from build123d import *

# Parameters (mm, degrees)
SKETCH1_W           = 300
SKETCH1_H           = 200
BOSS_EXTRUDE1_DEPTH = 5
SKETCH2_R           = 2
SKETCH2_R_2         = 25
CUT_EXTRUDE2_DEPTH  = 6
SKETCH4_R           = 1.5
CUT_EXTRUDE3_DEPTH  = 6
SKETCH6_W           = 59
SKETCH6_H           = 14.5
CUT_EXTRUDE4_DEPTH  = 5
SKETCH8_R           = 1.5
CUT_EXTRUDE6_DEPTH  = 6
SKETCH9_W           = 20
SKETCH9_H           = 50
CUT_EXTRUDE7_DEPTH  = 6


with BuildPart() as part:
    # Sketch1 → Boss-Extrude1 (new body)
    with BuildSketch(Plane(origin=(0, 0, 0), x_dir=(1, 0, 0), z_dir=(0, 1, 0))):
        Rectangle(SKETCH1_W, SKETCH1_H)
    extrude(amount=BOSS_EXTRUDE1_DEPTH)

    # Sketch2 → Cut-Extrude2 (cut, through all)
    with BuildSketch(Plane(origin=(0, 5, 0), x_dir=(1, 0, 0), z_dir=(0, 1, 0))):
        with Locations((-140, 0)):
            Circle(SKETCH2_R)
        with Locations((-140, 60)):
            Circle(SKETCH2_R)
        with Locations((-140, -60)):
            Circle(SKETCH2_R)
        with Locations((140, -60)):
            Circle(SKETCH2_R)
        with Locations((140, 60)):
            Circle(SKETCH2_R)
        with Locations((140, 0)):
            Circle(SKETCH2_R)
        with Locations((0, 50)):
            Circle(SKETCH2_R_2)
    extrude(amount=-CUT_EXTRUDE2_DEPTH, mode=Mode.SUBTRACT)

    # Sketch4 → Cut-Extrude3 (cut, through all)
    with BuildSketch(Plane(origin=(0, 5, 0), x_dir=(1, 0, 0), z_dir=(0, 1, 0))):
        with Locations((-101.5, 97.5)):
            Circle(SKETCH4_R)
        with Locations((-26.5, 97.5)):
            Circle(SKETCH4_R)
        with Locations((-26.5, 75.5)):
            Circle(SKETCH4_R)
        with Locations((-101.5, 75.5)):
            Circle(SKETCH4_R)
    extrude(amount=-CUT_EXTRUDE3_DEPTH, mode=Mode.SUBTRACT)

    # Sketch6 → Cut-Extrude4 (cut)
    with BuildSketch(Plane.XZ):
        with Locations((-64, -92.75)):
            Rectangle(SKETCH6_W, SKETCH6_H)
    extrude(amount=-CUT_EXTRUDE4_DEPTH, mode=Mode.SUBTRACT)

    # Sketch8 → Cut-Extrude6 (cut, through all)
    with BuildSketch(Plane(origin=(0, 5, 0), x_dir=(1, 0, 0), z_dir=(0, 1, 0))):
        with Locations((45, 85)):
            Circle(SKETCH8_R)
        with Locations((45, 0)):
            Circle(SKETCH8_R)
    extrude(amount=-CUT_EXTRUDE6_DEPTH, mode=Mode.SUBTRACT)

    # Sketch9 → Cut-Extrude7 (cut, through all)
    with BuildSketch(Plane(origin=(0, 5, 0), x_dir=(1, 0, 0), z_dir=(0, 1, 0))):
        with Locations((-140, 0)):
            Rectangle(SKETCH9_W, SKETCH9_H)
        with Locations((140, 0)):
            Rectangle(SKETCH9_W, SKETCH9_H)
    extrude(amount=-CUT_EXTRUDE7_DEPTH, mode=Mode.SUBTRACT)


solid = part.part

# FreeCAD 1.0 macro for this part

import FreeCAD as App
import Part
import Sketcher
from FreeCAD import Vector
Q = App.Units.Quantity


def add_polygon(sketch, points):
    """Adds a closed chain of lines whose ends are joined by coincident constraints."""
    first, n = sketch.GeometryCount, len(points)
    for a, b in zip(points, points[1:] + points[:1]):
        sketch.addGeometry(Part.LineSegment(App.Vector(*a, 0), App.Vector(*b, 0)), False)
    for i in range(n):
        sketch.addConstraint(Sketcher.Constraint("Coincident", first + i, 2, first + (i + 1) % n, 1))

doc = App.newDocument("Part")
body = doc.addObject("PartDesign::Body", "Body")

# Sketch on XZ plane
sketch1 = doc.addObject("Sketcher::SketchObject", "Sketch")
body.addObject(sketch1)
sketch1.AttachmentSupport = (doc.XZ_Plane, [""])
sketch1.MapMode = "FlatFace"
add_polygon(sketch1, [(-150, -100), (-150, 100), (150, 100), (150, -100)])  # lines 0-3
sketch1.addConstraint([
    Sketcher.Constraint("Vertical", 0),
    Sketcher.Constraint("Horizontal", 1),
    Sketcher.Constraint("Vertical", 2),
    Sketcher.Constraint("Horizontal", 3),
    Sketcher.Constraint("Symmetric", 0, 2, 2, 2, -1, 1),
    Sketcher.Constraint("DistanceX", 1, 1, 1, 2, Q("300 mm")),
    Sketcher.Constraint("DistanceY", 0, 1, 0, 2, Q("200 mm")),
])
pad1 = doc.addObject("PartDesign::Pad", "Pad")
body.addObject(pad1)
pad1.Profile = sketch1
pad1.Length = 5
pad1.Reversed = True

# Sketch on XZ plane
sketch2 = doc.addObject("Sketcher::SketchObject", "Sketch001")
body.addObject(sketch2)
sketch2.AttachmentSupport = (doc.XZ_Plane, [""])
sketch2.MapMode = "FlatFace"
sketch2.AttachmentOffset = App.Placement(Vector(0, 0, -5), App.Rotation())
sketch2.addGeometry([
    Part.Circle(Vector(-140, 0, 0), Vector(0, 0, 1), 2),  # 0
    Part.Circle(Vector(-140, -60, 0), Vector(0, 0, 1), 2),  # 1
    Part.Circle(Vector(-140, 60, 0), Vector(0, 0, 1), 2),  # 2
    Part.Circle(Vector(140, 60, 0), Vector(0, 0, 1), 2),  # 3
    Part.Circle(Vector(140, -60, 0), Vector(0, 0, 1), 2),  # 4
    Part.Circle(Vector(140, 0, 0), Vector(0, 0, 1), 2),  # 5
    Part.Circle(Vector(0, -50, 0), Vector(0, 0, 1), 25),  # 6
], False)
sketch2.addConstraint([
    Sketcher.Constraint("Equal", 0, 1),
    Sketcher.Constraint("Equal", 1, 2),
    Sketcher.Constraint("Equal", 2, 3),
    Sketcher.Constraint("Equal", 3, 4),
    Sketcher.Constraint("Equal", 4, 5),
    Sketcher.Constraint("Symmetric", 1, 3, 3, 3, -1, 1),
    Sketcher.Constraint("Symmetric", 2, 3, 4, 3, -1, 1),
    Sketcher.Constraint("Symmetric", 0, 3, 5, 3, -1, 1),
    Sketcher.Constraint("Symmetric", 2, 3, 3, 3, -2),
    Sketcher.Constraint("PointOnObject", 0, 3, -1),
    Sketcher.Constraint("PointOnObject", 6, 3, -2),
    Sketcher.Constraint("Vertical", 0, 3, 1, 3),
    Sketcher.Constraint("Diameter", 0, Q("4 mm")),
    Sketcher.Constraint("Diameter", 6, Q("50 mm")),
    Sketcher.Constraint("DistanceX", 0, 3, -1, 1, Q("140 mm")),
    Sketcher.Constraint("DistanceY", 1, 3, -1, 1, Q("60 mm")),
    Sketcher.Constraint("DistanceY", 6, 3, -1, 1, Q("50 mm")),
])
pocket1 = doc.addObject("PartDesign::Pocket", "Pocket")
body.addObject(pocket1)
pocket1.Profile = sketch2
pocket1.Type = "ThroughAll"
pocket1.Reversed = True

# Sketch on XZ plane
sketch3 = doc.addObject("Sketcher::SketchObject", "Sketch002")
body.addObject(sketch3)
sketch3.AttachmentSupport = (doc.XZ_Plane, [""])
sketch3.MapMode = "FlatFace"
sketch3.AttachmentOffset = App.Placement(Vector(0, 0, -5), App.Rotation())
sketch3.addGeometry([
    Part.Circle(Vector(-101.5, -97.5, 0), Vector(0, 0, 1), 1.5),
    Part.Circle(Vector(-26.5, -97.5, 0), Vector(0, 0, 1), 1.5),
    Part.Circle(Vector(-26.5, -75.5, 0), Vector(0, 0, 1), 1.5),
    Part.Circle(Vector(-101.5, -75.5, 0), Vector(0, 0, 1), 1.5),
], False)
sketch3.addConstraint([
    Sketcher.Constraint("Equal", 0, 1),
    Sketcher.Constraint("Equal", 1, 2),
    Sketcher.Constraint("Equal", 2, 3),
    Sketcher.Constraint("Horizontal", 0, 3, 1, 3),
    Sketcher.Constraint("Horizontal", 2, 3, 3, 3),
    Sketcher.Constraint("Vertical", 1, 3, 2, 3),
    Sketcher.Constraint("Vertical", 0, 3, 3, 3),
    Sketcher.Constraint("Diameter", 0, Q("3 mm")),
    Sketcher.Constraint("DistanceX", 0, 3, 1, 3, Q("75 mm")),
    Sketcher.Constraint("DistanceY", 1, 3, 2, 3, Q("22 mm")),
    Sketcher.Constraint("DistanceX", 0, 3, -1, 1, Q("101.5 mm")),
    Sketcher.Constraint("DistanceY", 0, 3, -1, 1, Q("97.5 mm")),
])
pocket2 = doc.addObject("PartDesign::Pocket", "Pocket001")
body.addObject(pocket2)
pocket2.Profile = sketch3
pocket2.Type = "ThroughAll"
pocket2.Reversed = True

# Sketch on XZ plane
sketch4 = doc.addObject("Sketcher::SketchObject", "Sketch003")
body.addObject(sketch4)
sketch4.AttachmentSupport = (doc.XZ_Plane, [""])
sketch4.MapMode = "FlatFace"
add_polygon(sketch4, [(-94, -86), (-94, -100), (-34, -100), (-34, -86)])  # lines 0-3
sketch4.addConstraint([
    Sketcher.Constraint("Vertical", 0),
    Sketcher.Constraint("Horizontal", 1),
    Sketcher.Constraint("Vertical", 2),
    Sketcher.Constraint("Horizontal", 3),
    Sketcher.Constraint("DistanceX", 1, 1, 1, 2, Q("59 mm")),
    Sketcher.Constraint("DistanceY", 0, 2, 0, 1, Q("14.5 mm")),
    Sketcher.Constraint("DistanceY", 0, 2, -1, 1, Q("100 mm")),
    Sketcher.Constraint("DistanceX", 0, 2, -1, 1, Q("93.5 mm")),
])
pocket3 = doc.addObject("PartDesign::Pocket", "Pocket002")
body.addObject(pocket3)
pocket3.Profile = sketch4
pocket3.Length = 5

# Sketch on XZ plane
sketch5 = doc.addObject("Sketcher::SketchObject", "Sketch004")
body.addObject(sketch5)
sketch5.AttachmentSupport = (doc.XZ_Plane, [""])
sketch5.MapMode = "FlatFace"
sketch5.AttachmentOffset = App.Placement(Vector(0, 0, -5), App.Rotation())
sketch5.addGeometry([
    Part.Circle(Vector(45, -85, 0), Vector(0, 0, 1), 1.5),
    Part.Circle(Vector(45, 0, 0), Vector(0, 0, 1), 1.5),
], False)
sketch5.addConstraint([
    Sketcher.Constraint("Equal", 0, 1),
    Sketcher.Constraint("PointOnObject", 1, 3, -1),
    Sketcher.Constraint("Vertical", 0, 3, 1, 3),
    Sketcher.Constraint("Diameter", 0, Q("3 mm")),
    Sketcher.Constraint("DistanceX", -1, 1, 0, 3, Q("45 mm")),
    Sketcher.Constraint("DistanceY", 0, 3, -1, 1, Q("85 mm")),
])
pocket4 = doc.addObject("PartDesign::Pocket", "Pocket003")
body.addObject(pocket4)
pocket4.Profile = sketch5
pocket4.Type = "ThroughAll"
pocket4.Reversed = True

# Sketch on XZ plane
sketch6 = doc.addObject("Sketcher::SketchObject", "Sketch005")
body.addObject(sketch6)
sketch6.AttachmentSupport = (doc.XZ_Plane, [""])
sketch6.MapMode = "FlatFace"
sketch6.AttachmentOffset = App.Placement(Vector(0, 0, -5), App.Rotation())
add_polygon(sketch6, [(-150, -25), (-150, 25), (-130, 25), (-130, -25)])  # lines 0-3
add_polygon(sketch6, [(130, -25), (130, 25), (150, 25), (150, -25)])  # lines 4-7
sketch6.addConstraint([
    Sketcher.Constraint("Vertical", 0),
    Sketcher.Constraint("Horizontal", 1),
    Sketcher.Constraint("Vertical", 2),
    Sketcher.Constraint("Horizontal", 3),
    Sketcher.Constraint("Vertical", 4),
    Sketcher.Constraint("Horizontal", 5),
    Sketcher.Constraint("Vertical", 6),
    Sketcher.Constraint("Horizontal", 7),
    Sketcher.Constraint("Symmetric", 2, 2, 4, 2, -1, 1),
    Sketcher.Constraint("Symmetric", 0, 2, 6, 2, -1, 1),
    Sketcher.Constraint("Horizontal", 1, 2, 4, 2),
    Sketcher.Constraint("DistanceX", 1, 1, 1, 2, Q("20 mm")),
    Sketcher.Constraint("DistanceY", 0, 1, 0, 2, Q("50 mm")),
    Sketcher.Constraint("DistanceX", 0, 2, -1, 1, Q("150 mm")),
])
pocket5 = doc.addObject("PartDesign::Pocket", "Pocket004")
body.addObject(pocket5)
pocket5.Profile = sketch6
pocket5.Type = "ThroughAll"
pocket5.Reversed = True

doc.recompute()
